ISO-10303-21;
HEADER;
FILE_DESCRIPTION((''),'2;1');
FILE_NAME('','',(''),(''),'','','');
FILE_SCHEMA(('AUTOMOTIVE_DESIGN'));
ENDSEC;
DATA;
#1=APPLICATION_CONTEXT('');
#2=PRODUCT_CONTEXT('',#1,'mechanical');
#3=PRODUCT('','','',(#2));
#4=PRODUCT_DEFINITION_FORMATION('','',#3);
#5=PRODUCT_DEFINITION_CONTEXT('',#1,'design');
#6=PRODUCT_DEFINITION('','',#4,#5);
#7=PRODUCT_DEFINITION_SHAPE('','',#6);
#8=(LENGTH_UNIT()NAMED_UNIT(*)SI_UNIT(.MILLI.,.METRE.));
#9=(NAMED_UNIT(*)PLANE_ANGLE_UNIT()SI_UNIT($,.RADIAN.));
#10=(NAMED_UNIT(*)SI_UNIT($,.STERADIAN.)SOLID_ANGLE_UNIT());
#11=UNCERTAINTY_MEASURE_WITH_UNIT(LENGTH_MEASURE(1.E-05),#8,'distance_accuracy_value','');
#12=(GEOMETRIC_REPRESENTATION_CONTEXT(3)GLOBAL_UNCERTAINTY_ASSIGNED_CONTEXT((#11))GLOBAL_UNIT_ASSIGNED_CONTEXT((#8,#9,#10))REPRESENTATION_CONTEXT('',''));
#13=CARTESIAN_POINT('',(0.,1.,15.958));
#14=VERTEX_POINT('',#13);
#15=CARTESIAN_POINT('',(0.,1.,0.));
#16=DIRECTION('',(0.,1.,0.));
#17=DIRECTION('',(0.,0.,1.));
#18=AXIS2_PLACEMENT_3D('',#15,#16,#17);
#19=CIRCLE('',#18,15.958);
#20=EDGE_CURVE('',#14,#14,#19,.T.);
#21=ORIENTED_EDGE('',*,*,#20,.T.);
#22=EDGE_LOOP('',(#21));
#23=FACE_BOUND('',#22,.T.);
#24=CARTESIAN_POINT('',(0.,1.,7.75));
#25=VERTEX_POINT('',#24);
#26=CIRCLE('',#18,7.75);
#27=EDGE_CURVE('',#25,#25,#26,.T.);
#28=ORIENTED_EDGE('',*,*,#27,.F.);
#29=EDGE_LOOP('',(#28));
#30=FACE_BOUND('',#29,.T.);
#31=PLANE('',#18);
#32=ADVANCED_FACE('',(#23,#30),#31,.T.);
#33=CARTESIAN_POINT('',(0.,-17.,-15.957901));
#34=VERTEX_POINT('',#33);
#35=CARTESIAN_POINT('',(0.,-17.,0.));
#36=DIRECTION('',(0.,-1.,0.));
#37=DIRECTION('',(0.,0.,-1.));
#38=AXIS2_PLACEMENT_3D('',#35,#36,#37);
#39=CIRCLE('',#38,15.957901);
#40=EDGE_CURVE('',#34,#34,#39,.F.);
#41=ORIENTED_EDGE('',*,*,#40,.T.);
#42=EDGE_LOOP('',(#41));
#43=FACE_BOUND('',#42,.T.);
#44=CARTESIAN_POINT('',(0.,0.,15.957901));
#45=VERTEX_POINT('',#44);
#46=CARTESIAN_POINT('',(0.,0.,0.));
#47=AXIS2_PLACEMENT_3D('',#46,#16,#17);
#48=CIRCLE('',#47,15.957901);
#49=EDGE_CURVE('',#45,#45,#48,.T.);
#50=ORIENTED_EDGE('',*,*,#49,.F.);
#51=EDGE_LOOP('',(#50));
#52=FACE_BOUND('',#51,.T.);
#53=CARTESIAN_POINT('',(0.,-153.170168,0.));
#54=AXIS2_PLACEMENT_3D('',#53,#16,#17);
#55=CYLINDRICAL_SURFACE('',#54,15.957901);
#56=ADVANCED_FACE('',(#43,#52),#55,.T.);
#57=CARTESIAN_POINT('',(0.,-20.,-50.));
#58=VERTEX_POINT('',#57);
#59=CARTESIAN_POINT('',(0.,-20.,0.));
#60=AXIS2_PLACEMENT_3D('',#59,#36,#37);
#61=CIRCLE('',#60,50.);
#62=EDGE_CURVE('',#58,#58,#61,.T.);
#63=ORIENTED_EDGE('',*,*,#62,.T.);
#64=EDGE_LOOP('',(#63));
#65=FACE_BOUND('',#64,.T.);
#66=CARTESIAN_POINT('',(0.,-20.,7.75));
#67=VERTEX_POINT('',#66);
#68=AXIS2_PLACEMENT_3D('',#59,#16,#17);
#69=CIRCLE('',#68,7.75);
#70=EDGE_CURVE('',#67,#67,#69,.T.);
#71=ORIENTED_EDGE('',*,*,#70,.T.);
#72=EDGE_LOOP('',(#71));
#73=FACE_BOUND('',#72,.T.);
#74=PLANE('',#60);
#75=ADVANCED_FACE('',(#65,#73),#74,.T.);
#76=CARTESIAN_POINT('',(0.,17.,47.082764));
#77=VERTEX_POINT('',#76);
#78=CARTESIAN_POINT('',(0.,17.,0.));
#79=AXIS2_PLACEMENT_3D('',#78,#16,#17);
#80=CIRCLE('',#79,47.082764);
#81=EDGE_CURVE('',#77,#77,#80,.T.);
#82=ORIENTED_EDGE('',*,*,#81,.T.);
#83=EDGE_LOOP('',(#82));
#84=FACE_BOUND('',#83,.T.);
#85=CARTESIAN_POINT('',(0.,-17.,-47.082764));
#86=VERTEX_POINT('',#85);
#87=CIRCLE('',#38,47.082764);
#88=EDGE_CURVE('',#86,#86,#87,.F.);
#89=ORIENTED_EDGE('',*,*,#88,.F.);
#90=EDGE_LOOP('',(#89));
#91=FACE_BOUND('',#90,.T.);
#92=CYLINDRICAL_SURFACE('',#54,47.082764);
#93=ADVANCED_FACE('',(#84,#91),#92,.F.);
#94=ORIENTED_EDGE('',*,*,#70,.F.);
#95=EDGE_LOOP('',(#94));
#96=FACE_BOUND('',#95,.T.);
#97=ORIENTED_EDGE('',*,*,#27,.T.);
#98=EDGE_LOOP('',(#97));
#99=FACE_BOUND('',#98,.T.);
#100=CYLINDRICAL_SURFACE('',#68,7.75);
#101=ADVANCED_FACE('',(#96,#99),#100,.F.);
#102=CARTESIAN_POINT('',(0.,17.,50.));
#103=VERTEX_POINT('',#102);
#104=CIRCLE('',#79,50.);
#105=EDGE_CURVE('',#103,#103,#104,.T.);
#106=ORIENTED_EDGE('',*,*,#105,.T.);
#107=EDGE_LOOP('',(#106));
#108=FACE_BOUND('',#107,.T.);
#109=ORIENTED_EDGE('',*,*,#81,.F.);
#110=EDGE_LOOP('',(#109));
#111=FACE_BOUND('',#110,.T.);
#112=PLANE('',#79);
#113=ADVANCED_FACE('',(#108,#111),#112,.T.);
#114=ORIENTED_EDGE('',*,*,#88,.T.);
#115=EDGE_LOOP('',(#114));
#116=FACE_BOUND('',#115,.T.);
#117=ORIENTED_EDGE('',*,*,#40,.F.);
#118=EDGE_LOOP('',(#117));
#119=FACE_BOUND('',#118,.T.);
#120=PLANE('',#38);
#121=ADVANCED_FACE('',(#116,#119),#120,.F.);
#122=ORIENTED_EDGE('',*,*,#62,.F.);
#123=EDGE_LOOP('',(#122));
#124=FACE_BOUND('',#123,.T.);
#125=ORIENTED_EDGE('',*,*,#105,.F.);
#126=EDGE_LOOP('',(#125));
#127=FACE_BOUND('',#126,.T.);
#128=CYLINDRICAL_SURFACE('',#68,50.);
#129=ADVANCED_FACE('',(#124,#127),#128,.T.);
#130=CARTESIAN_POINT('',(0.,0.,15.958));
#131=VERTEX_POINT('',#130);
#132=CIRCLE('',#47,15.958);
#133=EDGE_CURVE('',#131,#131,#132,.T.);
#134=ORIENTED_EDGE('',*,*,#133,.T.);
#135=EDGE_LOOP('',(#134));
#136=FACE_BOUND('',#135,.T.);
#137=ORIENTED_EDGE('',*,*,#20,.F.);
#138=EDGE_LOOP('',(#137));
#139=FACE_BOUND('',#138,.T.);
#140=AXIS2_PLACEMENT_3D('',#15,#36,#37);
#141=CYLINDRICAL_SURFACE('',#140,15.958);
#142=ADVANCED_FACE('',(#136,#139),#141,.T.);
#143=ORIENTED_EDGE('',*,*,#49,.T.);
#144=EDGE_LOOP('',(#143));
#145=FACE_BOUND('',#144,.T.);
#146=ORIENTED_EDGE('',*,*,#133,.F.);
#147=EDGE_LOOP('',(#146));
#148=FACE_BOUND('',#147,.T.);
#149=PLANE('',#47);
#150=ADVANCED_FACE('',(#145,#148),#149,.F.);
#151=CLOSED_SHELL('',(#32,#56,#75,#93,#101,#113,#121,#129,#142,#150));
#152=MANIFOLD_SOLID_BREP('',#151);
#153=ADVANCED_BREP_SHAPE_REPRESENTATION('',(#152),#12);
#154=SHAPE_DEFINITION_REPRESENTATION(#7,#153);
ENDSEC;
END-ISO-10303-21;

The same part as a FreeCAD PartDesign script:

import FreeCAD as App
import Part
import Sketcher
from FreeCAD import Vector
Q = App.Units.Quantity

doc = App.newDocument("Part")
body = doc.addObject("PartDesign::Body", "Body")

# Sketch on XZ plane
sketch1 = body.newObject("Sketcher::SketchObject", "Sketch")
sketch1.AttachmentSupport = (doc.getObject("XZ_Plane"), [""])
sketch1.MapMode = "FlatFace"
sketch1.addGeometry(Part.Circle(Vector(0, 0, 0), Vector(0, 0, 1), 16), False)
sketch1.addConstraint(Sketcher.Constraint("Coincident", 0, 3, -1, 1))
sketch1.addConstraint(Sketcher.Constraint("Diameter", 0, Q("31.916 mm")))
pad1 = body.newObject("PartDesign::Pad", "Pad")
pad1.Profile = sketch1
pad1.Length = 1
pad1.Reversed = True

# Sketch on XZ plane
sketch2 = body.newObject("Sketcher::SketchObject", "Sketch001")
sketch2.AttachmentSupport = (doc.getObject("XZ_Plane"), [""])
sketch2.MapMode = "FlatFace"
sketch2.AttachmentOffset = App.Placement(Vector(0, 0, -1), App.Rotation())
sketch2.addGeometry(Part.Circle(Vector(0, 0, 0), Vector(0, 0, 1), 3.4), False)
sketch2.addConstraint(Sketcher.Constraint("Coincident", 0, 3, -1, 1))
sketch2.addConstraint(Sketcher.Constraint("Diameter", 0, Q("6.8 mm")))
pocket1 = body.newObject("PartDesign::Pocket", "Pocket")
pocket1.Profile = sketch2
pocket1.Length = 16.85
pocket1.Reversed = True

# Sketch on XZ plane
sketch3 = body.newObject("Sketcher::SketchObject", "Sketch002")
sketch3.AttachmentSupport = (doc.getObject("XZ_Plane"), [""])
sketch3.MapMode = "FlatFace"
sketch3.addGeometry(Part.Circle(Vector(0, 0, 0), Vector(0, 0, 1), 50), False)
sketch3.addConstraint(Sketcher.Constraint("Coincident", 0, 3, -1, 1))
sketch3.addConstraint(Sketcher.Constraint("Diameter", 0, Q("100 mm")))
pad2 = body.newObject("PartDesign::Pad", "Pad001")
pad2.Profile = sketch3
pad2.Length = 20

# Sketch on XZ plane
sketch4 = body.newObject("Sketcher::SketchObject", "Sketch003")
sketch4.AttachmentSupport = (doc.getObject("XZ_Plane"), [""])
sketch4.MapMode = "FlatFace"
sketch4.addGeometry(Part.Circle(Vector(0, 0, 0), Vector(0, 0, 1), 47), False)
sketch4.addGeometry(Part.Circle(Vector(0, 0, 0), Vector(0, 0, 1), 16), False)
sketch4.addConstraint(Sketcher.Constraint("Coincident", 0, 3, -1, 1))
sketch4.addConstraint(Sketcher.Constraint("Coincident", 1, 3, -1, 1))
sketch4.addConstraint(Sketcher.Constraint("Diameter", 1, Q("31.915802 mm")))
sketch4.addConstraint(Sketcher.Constraint("Diameter", 0, Q("94.165529 mm")))
pocket2 = body.newObject("PartDesign::Pocket", "Pocket001")
pocket2.Profile = sketch4
pocket2.Length = 17
pocket2.Reversed = True

# Sketch on XZ plane
sketch5 = body.newObject("Sketcher::SketchObject", "Sketch004")
sketch5.AttachmentSupport = (doc.getObject("XZ_Plane"), [""])
sketch5.MapMode = "FlatFace"
sketch5.addGeometry(Part.Circle(Vector(0, 0, 0), Vector(0, 0, 1), 50), False)
sketch5.addGeometry(Part.Circle(Vector(0, 0, 0), Vector(0, 0, 1), 47), False)
sketch5.addConstraint(Sketcher.Constraint("Coincident", 0, 3, -1, 1))
sketch5.addConstraint(Sketcher.Constraint("Coincident", 1, 3, -1, 1))
sketch5.addConstraint(Sketcher.Constraint("Diameter", 0, Q("100 mm")))
sketch5.addConstraint(Sketcher.Constraint("Diameter", 1, Q("94.165529 mm")))
pad3 = body.newObject("PartDesign::Pad", "Pad002")
pad3.Profile = sketch5
pad3.Length = 17
pad3.Reversed = True

# Sketch on XZ plane
sketch6 = body.newObject("Sketcher::SketchObject", "Sketch005")
sketch6.AttachmentSupport = (doc.getObject("XZ_Plane"), [""])
sketch6.MapMode = "FlatFace"
sketch6.AttachmentOffset = App.Placement(Vector(0, 0, -1), App.Rotation())
sketch6.addGeometry(Part.Circle(Vector(0, 0, 0), Vector(0, 0, 1), 8), False)
sketch6.addConstraint(Sketcher.Constraint("Coincident", 0, 3, -1, 1))
sketch6.addConstraint(Sketcher.Constraint("Diameter", 0, Q("15.5 mm")))
pocket3 = body.newObject("PartDesign::Pocket", "Pocket002")
pocket3.Profile = sketch6
pocket3.Type = "ThroughAll"
pocket3.Reversed = True

doc.recompute()
